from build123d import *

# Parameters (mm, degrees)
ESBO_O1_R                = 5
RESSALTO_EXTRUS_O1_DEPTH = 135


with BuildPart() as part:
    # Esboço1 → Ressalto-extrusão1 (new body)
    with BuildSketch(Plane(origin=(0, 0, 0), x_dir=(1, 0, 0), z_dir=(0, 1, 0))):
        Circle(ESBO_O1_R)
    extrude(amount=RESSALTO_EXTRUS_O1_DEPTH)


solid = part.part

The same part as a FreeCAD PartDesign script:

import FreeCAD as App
import Part
import Sketcher
Q = App.Units.Quantity

doc = App.newDocument("Part")
body = doc.addObject("PartDesign::Body", "Body")

sketch1 = body.newObject("Sketcher::SketchObject", "Sketch")
sketch1.AttachmentSupport = (doc.getObject("XZ_Plane"), [""])
sketch1.MapMode = "FlatFace"
sketch1.addGeometry(Part.Circle(App.Vector(0, 0, 0), App.Vector(0, 0, 1), 5), False)
sketch1.addConstraint(Sketcher.Constraint("Coincident", 0, 3, -1, 1))
sketch1.addConstraint(Sketcher.Constraint("Diameter", 0, Q("10 mm")))
pad1 = body.newObject("PartDesign::Pad", "Pad")
pad1.Profile = sketch1
pad1.Length = 135
pad1.Reversed = True

doc.recompute()
